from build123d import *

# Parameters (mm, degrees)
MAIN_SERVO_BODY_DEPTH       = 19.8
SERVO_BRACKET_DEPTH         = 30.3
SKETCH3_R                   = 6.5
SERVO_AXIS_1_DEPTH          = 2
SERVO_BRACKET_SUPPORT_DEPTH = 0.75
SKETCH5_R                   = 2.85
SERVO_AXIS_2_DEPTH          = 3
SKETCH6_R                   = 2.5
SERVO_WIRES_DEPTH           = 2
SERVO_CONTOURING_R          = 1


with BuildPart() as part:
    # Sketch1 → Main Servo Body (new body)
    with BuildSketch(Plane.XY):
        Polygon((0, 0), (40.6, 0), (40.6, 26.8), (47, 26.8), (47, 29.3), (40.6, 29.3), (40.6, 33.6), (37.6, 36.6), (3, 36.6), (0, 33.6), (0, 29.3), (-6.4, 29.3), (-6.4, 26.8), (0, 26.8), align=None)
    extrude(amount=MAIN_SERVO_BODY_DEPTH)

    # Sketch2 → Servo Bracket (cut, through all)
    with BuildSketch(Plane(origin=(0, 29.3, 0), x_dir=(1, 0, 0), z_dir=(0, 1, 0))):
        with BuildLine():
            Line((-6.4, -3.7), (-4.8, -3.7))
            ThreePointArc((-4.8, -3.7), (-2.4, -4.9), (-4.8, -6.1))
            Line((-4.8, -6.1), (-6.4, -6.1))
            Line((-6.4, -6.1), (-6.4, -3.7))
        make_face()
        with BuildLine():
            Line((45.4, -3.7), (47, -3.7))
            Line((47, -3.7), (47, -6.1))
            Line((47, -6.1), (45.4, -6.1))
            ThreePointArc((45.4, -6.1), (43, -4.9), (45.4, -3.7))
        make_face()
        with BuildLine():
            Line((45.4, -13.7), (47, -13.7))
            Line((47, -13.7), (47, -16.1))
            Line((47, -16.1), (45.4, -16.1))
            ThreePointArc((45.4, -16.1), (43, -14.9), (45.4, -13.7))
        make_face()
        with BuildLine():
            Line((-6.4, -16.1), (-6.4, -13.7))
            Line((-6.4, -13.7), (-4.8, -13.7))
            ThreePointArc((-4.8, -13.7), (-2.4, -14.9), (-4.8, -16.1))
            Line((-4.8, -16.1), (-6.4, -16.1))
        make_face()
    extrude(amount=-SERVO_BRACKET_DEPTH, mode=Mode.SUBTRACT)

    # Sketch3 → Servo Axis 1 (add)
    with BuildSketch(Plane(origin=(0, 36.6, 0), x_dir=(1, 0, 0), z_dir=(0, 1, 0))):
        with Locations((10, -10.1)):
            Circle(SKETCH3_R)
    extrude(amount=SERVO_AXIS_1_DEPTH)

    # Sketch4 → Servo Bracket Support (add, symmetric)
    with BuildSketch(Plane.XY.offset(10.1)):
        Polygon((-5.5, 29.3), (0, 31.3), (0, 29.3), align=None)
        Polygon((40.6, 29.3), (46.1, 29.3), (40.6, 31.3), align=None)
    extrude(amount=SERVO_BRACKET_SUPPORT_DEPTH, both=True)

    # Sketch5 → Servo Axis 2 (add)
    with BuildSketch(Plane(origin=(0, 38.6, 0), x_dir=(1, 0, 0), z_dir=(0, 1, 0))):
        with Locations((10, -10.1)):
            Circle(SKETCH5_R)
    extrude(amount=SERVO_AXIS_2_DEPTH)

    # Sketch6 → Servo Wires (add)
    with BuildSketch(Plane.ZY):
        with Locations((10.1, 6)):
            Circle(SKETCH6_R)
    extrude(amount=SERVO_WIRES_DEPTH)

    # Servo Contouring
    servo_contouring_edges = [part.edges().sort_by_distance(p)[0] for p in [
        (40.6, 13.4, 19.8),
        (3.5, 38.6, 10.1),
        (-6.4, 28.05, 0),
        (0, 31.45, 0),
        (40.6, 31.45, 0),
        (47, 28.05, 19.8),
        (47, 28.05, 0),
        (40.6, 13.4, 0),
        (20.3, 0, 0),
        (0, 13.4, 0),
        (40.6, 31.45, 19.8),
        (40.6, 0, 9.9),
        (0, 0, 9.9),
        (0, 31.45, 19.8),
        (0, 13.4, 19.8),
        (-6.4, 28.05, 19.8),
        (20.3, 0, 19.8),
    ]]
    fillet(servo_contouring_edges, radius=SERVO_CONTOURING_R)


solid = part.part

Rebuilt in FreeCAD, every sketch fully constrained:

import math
import FreeCAD as App
import Part
import Sketcher
from FreeCAD import Vector
Q = App.Units.Quantity


def edges_at(feature, points):
    """Names of the edges that pass closest to the given points."""
    edges = feature.Shape.Edges
    near = lambda p: min(range(len(edges)), key=lambda i: edges[i].distToShape(Part.Vertex(*p))[0])
    return sorted({f"Edge{near(p) + 1}" for p in points})

doc = App.newDocument("Part")
body = doc.addObject("PartDesign::Body", "Body")

sketch1 = doc.addObject("Sketcher::SketchObject", "Sketch")
body.addObject(sketch1)
sketch1.AttachmentSupport = (doc.XY_Plane, [""])
sketch1.MapMode = "FlatFace"
sketch1.addGeometry(Part.LineSegment(Vector(0, 0, 0), Vector(40.6, 0, 0)), False)
sketch1.addGeometry(Part.LineSegment(Vector(40.6, 0, 0), Vector(40.6, 26.8, 0)), False)
sketch1.addGeometry(Part.LineSegment(Vector(40.6, 26.8, 0), Vector(47, 26.8, 0)), False)
sketch1.addGeometry(Part.LineSegment(Vector(47, 26.8, 0), Vector(47, 29.3, 0)), False)
sketch1.addGeometry(Part.LineSegment(Vector(47, 29.3, 0), Vector(40.6, 29.3, 0)), False)
sketch1.addGeometry(Part.LineSegment(Vector(40.6, 29.3, 0), Vector(40.6, 33.6, 0)), False)
sketch1.addGeometry(Part.LineSegment(Vector(40.6, 33.6, 0), Vector(37.6, 36.6, 0)), False)
sketch1.addGeometry(Part.LineSegment(Vector(37.6, 36.6, 0), Vector(3, 36.6, 0)), False)
sketch1.addGeometry(Part.LineSegment(Vector(3, 36.6, 0), Vector(0, 33.6, 0)), False)
sketch1.addGeometry(Part.LineSegment(Vector(0, 33.6, 0), Vector(0, 29.3, 0)), False)
sketch1.addGeometry(Part.LineSegment(Vector(0, 29.3, 0), Vector(-6.4, 29.3, 0)), False)
sketch1.addGeometry(Part.LineSegment(Vector(-6.4, 29.3, 0), Vector(-6.4, 26.8, 0)), False)
sketch1.addGeometry(Part.LineSegment(Vector(-6.4, 26.8, 0), Vector(0, 26.8, 0)), False)
sketch1.addGeometry(Part.LineSegment(Vector(0, 26.8, 0), Vector(0, 0, 0)), False)
sketch1.addConstraint(Sketcher.Constraint("Coincident", 0, 2, 1, 1))
sketch1.addConstraint(Sketcher.Constraint("Coincident", 1, 2, 2, 1))
sketch1.addConstraint(Sketcher.Constraint("Coincident", 2, 2, 3, 1))
sketch1.addConstraint(Sketcher.Constraint("Coincident", 3, 2, 4, 1))
sketch1.addConstraint(Sketcher.Constraint("Coincident", 4, 2, 5, 1))
sketch1.addConstraint(Sketcher.Constraint("Coincident", 5, 2, 6, 1))
sketch1.addConstraint(Sketcher.Constraint("Coincident", 6, 2, 7, 1))
sketch1.addConstraint(Sketcher.Constraint("Coincident", 7, 2, 8, 1))
sketch1.addConstraint(Sketcher.Constraint("Coincident", 8, 2, 9, 1))
sketch1.addConstraint(Sketcher.Constraint("Coincident", 9, 2, 10, 1))
sketch1.addConstraint(Sketcher.Constraint("Coincident", 10, 2, 11, 1))
sketch1.addConstraint(Sketcher.Constraint("Coincident", 11, 2, 12, 1))
sketch1.addConstraint(Sketcher.Constraint("Coincident", 12, 2, 13, 1))
sketch1.addConstraint(Sketcher.Constraint("Coincident", 13, 2, 0, 1))
sketch1.addConstraint(Sketcher.Constraint("Horizontal", 0))
sketch1.addConstraint(Sketcher.Constraint("Vertical", 1))
sketch1.addConstraint(Sketcher.Constraint("Horizontal", 2))
sketch1.addConstraint(Sketcher.Constraint("Vertical", 3))
sketch1.addConstraint(Sketcher.Constraint("Horizontal", 4))
sketch1.addConstraint(Sketcher.Constraint("Vertical", 5))
sketch1.addConstraint(Sketcher.Constraint("Horizontal", 7))
sketch1.addConstraint(Sketcher.Constraint("Vertical", 9))
sketch1.addConstraint(Sketcher.Constraint("Horizontal", 10))
sketch1.addConstraint(Sketcher.Constraint("Vertical", 11))
sketch1.addConstraint(Sketcher.Constraint("Horizontal", 12))
sketch1.addConstraint(Sketcher.Constraint("Vertical", 13))
sketch1.addConstraint(Sketcher.Constraint("Coincident", 13, 2, -1, 1))
sketch1.addConstraint(Sketcher.Constraint("PointOnObject", 8, 2, -2))
sketch1.addConstraint(Sketcher.Constraint("Perpendicular", 6, 8))
sketch1.addConstraint(Sketcher.Constraint("Horizontal", 5, 2, 8, 2))
sketch1.addConstraint(Sketcher.Constraint("Horizontal", 4, 2, 9, 2))
sketch1.addConstraint(Sketcher.Constraint("Horizontal", 2, 2, 11, 2))
sketch1.addConstraint(Sketcher.Constraint("Vertical", 1, 2, 4, 2))
sketch1.addConstraint(Sketcher.Constraint("Equal", 4, 10))
sketch1.addConstraint(Sketcher.Constraint("Equal", 6, 8))
sketch1.addConstraint(Sketcher.Constraint("DistanceX", 0, 1, 0, 2, Q("40.6 mm")))
sketch1.addConstraint(Sketcher.Constraint("DistanceX", 2, 1, 2, 2, Q("6.4 mm")))
sketch1.addConstraint(Sketcher.Constraint("DistanceX", 7, 2, 7, 1, Q("34.6 mm")))
sketch1.addConstraint(Sketcher.Constraint("DistanceY", 1, 1, 1, 2, Q("26.8 mm")))
sketch1.addConstraint(Sketcher.Constraint("DistanceY", 3, 1, 3, 2, Q("2.5 mm")))
sketch1.addConstraint(Sketcher.Constraint("DistanceY", 5, 1, 5, 2, Q("4.3 mm")))
pad1 = doc.addObject("PartDesign::Pad", "Pad")
body.addObject(pad1)
pad1.Profile = sketch1
pad1.Length = 19.8

sketch2 = doc.addObject("Sketcher::SketchObject", "Sketch001")
body.addObject(sketch2)
sketch2.AttachmentSupport = (doc.XZ_Plane, [""])
sketch2.MapMode = "FlatFace"
sketch2.AttachmentOffset = App.Placement(Vector(0, 0, -29.3), App.Rotation())
sketch2.addGeometry(Part.LineSegment(Vector(-4.8, 3.7, 0), Vector(-6.4, 3.7, 0)), False)
sketch2.addGeometry(Part.LineSegment(Vector(-6.4, 3.7, 0), Vector(-6.4, 6.1, 0)), False)
sketch2.addGeometry(Part.LineSegment(Vector(-6.4, 6.1, 0), Vector(-4.8, 6.1, 0)), False)
sketch2.addGeometry(Part.ArcOfCircle(Part.Circle(Vector(-3.9, 4.9, 0), Vector(0, 0, 1), 1.5), math.radians(-127), math.radians(127)), False)
sketch2.addGeometry(Part.LineSegment(Vector(47, 3.7, 0), Vector(45.4, 3.7, 0)), False)
sketch2.addGeometry(Part.ArcOfCircle(Part.Circle(Vector(44.5, 4.9, 0), Vector(0, 0, 1), 1.5), math.radians(53), math.radians(307)), False)
sketch2.addGeometry(Part.LineSegment(Vector(45.4, 6.1, 0), Vector(47, 6.1, 0)), False)
sketch2.addGeometry(Part.LineSegment(Vector(47, 6.1, 0), Vector(47, 3.7, 0)), False)
sketch2.addGeometry(Part.LineSegment(Vector(47, 13.7, 0), Vector(45.4, 13.7, 0)), False)
sketch2.addGeometry(Part.ArcOfCircle(Part.Circle(Vector(44.5, 14.9, 0), Vector(0, 0, 1), 1.5), math.radians(53), math.radians(307)), False)
sketch2.addGeometry(Part.LineSegment(Vector(45.4, 16.1, 0), Vector(47, 16.1, 0)), False)
sketch2.addGeometry(Part.LineSegment(Vector(47, 16.1, 0), Vector(47, 13.7, 0)), False)
sketch2.addGeometry(Part.LineSegment(Vector(-6.4, 13.7, 0), Vector(-6.4, 16.1, 0)), False)
sketch2.addGeometry(Part.LineSegment(Vector(-6.4, 16.1, 0), Vector(-4.8, 16.1, 0)), False)
sketch2.addGeometry(Part.ArcOfCircle(Part.Circle(Vector(-3.9, 14.9, 0), Vector(0, 0, 1), 1.5), math.radians(-127), math.radians(127)), False)
sketch2.addGeometry(Part.LineSegment(Vector(-4.8, 13.7, 0), Vector(-6.4, 13.7, 0)), False)
sketch2.addConstraint(Sketcher.Constraint("Coincident", 0, 2, 1, 1))
sketch2.addConstraint(Sketcher.Constraint("Coincident", 1, 2, 2, 1))
sketch2.addConstraint(Sketcher.Constraint("Coincident", 2, 2, 3, 2))
sketch2.addConstraint(Sketcher.Constraint("Coincident", 3, 1, 0, 1))
sketch2.addConstraint(Sketcher.Constraint("Coincident", 4, 2, 5, 2))
sketch2.addConstraint(Sketcher.Constraint("Coincident", 5, 1, 6, 1))
sketch2.addConstraint(Sketcher.Constraint("Coincident", 6, 2, 7, 1))
sketch2.addConstraint(Sketcher.Constraint("Coincident", 7, 2, 4, 1))
sketch2.addConstraint(Sketcher.Constraint("Coincident", 8, 2, 9, 2))
sketch2.addConstraint(Sketcher.Constraint("Coincident", 9, 1, 10, 1))
sketch2.addConstraint(Sketcher.Constraint("Coincident", 10, 2, 11, 1))
sketch2.addConstraint(Sketcher.Constraint("Coincident", 11, 2, 8, 1))
sketch2.addConstraint(Sketcher.Constraint("Coincident", 12, 2, 13, 1))
sketch2.addConstraint(Sketcher.Constraint("Coincident", 13, 2, 14, 2))
sketch2.addConstraint(Sketcher.Constraint("Coincident", 14, 1, 15, 1))
sketch2.addConstraint(Sketcher.Constraint("Coincident", 15, 2, 12, 1))
sketch2.addConstraint(Sketcher.Constraint("Horizontal", 0))
sketch2.addConstraint(Sketcher.Constraint("Vertical", 1))
sketch2.addConstraint(Sketcher.Constraint("Horizontal", 2))
sketch2.addConstraint(Sketcher.Constraint("Horizontal", 4))
sketch2.addConstraint(Sketcher.Constraint("Horizontal", 6))
sketch2.addConstraint(Sketcher.Constraint("Vertical", 7))
sketch2.addConstraint(Sketcher.Constraint("Horizontal", 8))
sketch2.addConstraint(Sketcher.Constraint("Horizontal", 10))
sketch2.addConstraint(Sketcher.Constraint("Vertical", 11))
sketch2.addConstraint(Sketcher.Constraint("Vertical", 12))
sketch2.addConstraint(Sketcher.Constraint("Horizontal", 13))
sketch2.addConstraint(Sketcher.Constraint("Horizontal", 15))
sketch2.addConstraint(Sketcher.Constraint("Equal", 3, 5))
sketch2.addConstraint(Sketcher.Constraint("Equal", 5, 9))
sketch2.addConstraint(Sketcher.Constraint("Equal", 9, 14))
sketch2.addConstraint(Sketcher.Constraint("Horizontal", 3, 3, 5, 3))
sketch2.addConstraint(Sketcher.Constraint("Horizontal", 9, 3, 14, 3))
sketch2.addConstraint(Sketcher.Constraint("Horizontal", 3, 1, 4, 2))
sketch2.addConstraint(Sketcher.Constraint("Horizontal", 2, 2, 5, 1))
sketch2.addConstraint(Sketcher.Constraint("Horizontal", 10, 2, 12, 2))
sketch2.addConstraint(Sketcher.Constraint("Horizontal", 11, 2, 14, 1))
sketch2.addConstraint(Sketcher.Constraint("Vertical", 5, 3, 9, 3))
sketch2.addConstraint(Sketcher.Constraint("Vertical", 3, 3, 14, 3))
sketch2.addConstraint(Sketcher.Constraint("Vertical", 2, 2, 3, 1))
sketch2.addConstraint(Sketcher.Constraint("Vertical", 5, 1, 8, 2))
sketch2.addConstraint(Sketcher.Constraint("Vertical", 8, 2, 9, 1))
sketch2.addConstraint(Sketcher.Constraint("Vertical", 7, 2, 10, 2))
sketch2.addConstraint(Sketcher.Constraint("Vertical", 1, 2, 12, 2))
sketch2.addConstraint(Sketcher.Constraint("Equal", 2, 4))
sketch2.addConstraint(Sketcher.Constraint("Radius", 3, Q("1.5 mm")))
sketch2.addConstraint(Sketcher.Constraint("DistanceX", 0, 2, 0, 1, Q("1.6 mm")))
sketch2.addConstraint(Sketcher.Constraint("DistanceY", 1, 1, 1, 2, Q("2.4 mm")))
sketch2.addConstraint(Sketcher.Constraint("DistanceX", -1, 1, 6, 2, Q("47 mm")))
sketch2.addConstraint(Sketcher.Constraint("DistanceY", 5, 3, 9, 3, Q("10 mm")))
sketch2.addConstraint(Sketcher.Constraint("DistanceX", 3, 3, -1, 1, Q("3.9 mm")))
sketch2.addConstraint(Sketcher.Constraint("DistanceY", -1, 1, 3, 3, Q("4.9 mm")))
pocket1 = doc.addObject("PartDesign::Pocket", "Pocket")
body.addObject(pocket1)
pocket1.Profile = sketch2
pocket1.Type = "ThroughAll"
pocket1.Reversed = True

sketch3 = doc.addObject("Sketcher::SketchObject", "Sketch002")
body.addObject(sketch3)
sketch3.AttachmentSupport = (doc.XZ_Plane, [""])
sketch3.MapMode = "FlatFace"
sketch3.AttachmentOffset = App.Placement(Vector(0, 0, -36.6), App.Rotation())
sketch3.addGeometry(Part.Circle(Vector(10, 10, 0), Vector(0, 0, 1), 6), False)
sketch3.addConstraint(Sketcher.Constraint("Diameter", 0, Q("13 mm")))
sketch3.addConstraint(Sketcher.Constraint("DistanceX", -1, 1, 0, 3, Q("10 mm")))
sketch3.addConstraint(Sketcher.Constraint("DistanceY", -1, 1, 0, 3, Q("10.1 mm")))
pad2 = doc.addObject("PartDesign::Pad", "Pad001")
body.addObject(pad2)
pad2.Profile = sketch3
pad2.Length = 2
pad2.Reversed = True

sketch4 = doc.addObject("Sketcher::SketchObject", "Sketch003")
body.addObject(sketch4)
sketch4.AttachmentSupport = (doc.XY_Plane, [""])
sketch4.MapMode = "FlatFace"
sketch4.AttachmentOffset = App.Placement(Vector(0, 0, 10.1), App.Rotation())
sketch4.addGeometry(Part.LineSegment(Vector(0, 31.3, 0), Vector(-5.5, 29.3, 0)), False)
sketch4.addGeometry(Part.LineSegment(Vector(-5.5, 29.3, 0), Vector(0, 29.3, 0)), False)
sketch4.addGeometry(Part.LineSegment(Vector(0, 29.3, 0), Vector(0, 31.3, 0)), False)
sketch4.addGeometry(Part.LineSegment(Vector(40.6, 29.3, 0), Vector(46.1, 29.3, 0)), False)
sketch4.addGeometry(Part.LineSegment(Vector(46.1, 29.3, 0), Vector(40.6, 31.3, 0)), False)
sketch4.addGeometry(Part.LineSegment(Vector(40.6, 31.3, 0), Vector(40.6, 29.3, 0)), False)
sketch4.addConstraint(Sketcher.Constraint("Coincident", 0, 2, 1, 1))
sketch4.addConstraint(Sketcher.Constraint("Coincident", 1, 2, 2, 1))
sketch4.addConstraint(Sketcher.Constraint("Coincident", 2, 2, 0, 1))
sketch4.addConstraint(Sketcher.Constraint("Coincident", 3, 2, 4, 1))
sketch4.addConstraint(Sketcher.Constraint("Coincident", 4, 2, 5, 1))
sketch4.addConstraint(Sketcher.Constraint("Coincident", 5, 2, 3, 1))
sketch4.addConstraint(Sketcher.Constraint("Horizontal", 1))
sketch4.addConstraint(Sketcher.Constraint("Vertical", 2))
sketch4.addConstraint(Sketcher.Constraint("Horizontal", 3))
sketch4.addConstraint(Sketcher.Constraint("Vertical", 5))
sketch4.addConstraint(Sketcher.Constraint("PointOnObject", 1, 2, -2))
sketch4.addConstraint(Sketcher.Constraint("Horizontal", 1, 2, 3, 2))
sketch4.addConstraint(Sketcher.Constraint("Horizontal", 2, 2, 4, 2))
sketch4.addConstraint(Sketcher.Constraint("Equal", 1, 3))
sketch4.addConstraint(Sketcher.Constraint("DistanceY", 2, 1, 2, 2, Q("2 mm")))
sketch4.addConstraint(Sketcher.Constraint("DistanceX", 1, 1, 1, 2, Q("5.5 mm")))
sketch4.addConstraint(Sketcher.Constraint("DistanceY", -1, 1, 0, 2, Q("29.3 mm")))
sketch4.addConstraint(Sketcher.Constraint("DistanceX", -1, 1, 3, 2, Q("46.1 mm")))
pad3 = doc.addObject("PartDesign::Pad", "Pad002")
body.addObject(pad3)
pad3.Profile = sketch4
pad3.Length = 1.5
pad3.Midplane = True

sketch5 = doc.addObject("Sketcher::SketchObject", "Sketch004")
body.addObject(sketch5)
sketch5.AttachmentSupport = (doc.XZ_Plane, [""])
sketch5.MapMode = "FlatFace"
sketch5.AttachmentOffset = App.Placement(Vector(0, 0, -38.6), App.Rotation())
sketch5.addGeometry(Part.Circle(Vector(10, 10.1, 0), Vector(0, 0, 1), 2.9), False)
sketch5.addConstraint(Sketcher.Constraint("Diameter", 0, Q("5.7 mm")))
sketch5.addConstraint(Sketcher.Constraint("DistanceX", -1, 1, 0, 3, Q("10 mm")))
sketch5.addConstraint(Sketcher.Constraint("DistanceY", -1, 1, 0, 3, Q("10.1 mm")))
pad4 = doc.addObject("PartDesign::Pad", "Pad003")
body.addObject(pad4)
pad4.Profile = sketch5
pad4.Length = 3
pad4.Reversed = True

sketch6 = doc.addObject("Sketcher::SketchObject", "Sketch005")
body.addObject(sketch6)
sketch6.AttachmentSupport = (doc.YZ_Plane, [""])
sketch6.MapMode = "FlatFace"
sketch6.addGeometry(Part.Circle(Vector(6, 10.1, 0), Vector(0, 0, 1), 2.5), False)
sketch6.addConstraint(Sketcher.Constraint("Diameter", 0, Q("5 mm")))
sketch6.addConstraint(Sketcher.Constraint("DistanceX", -1, 1, 0, 3, Q("6 mm")))
sketch6.addConstraint(Sketcher.Constraint("DistanceY", -1, 1, 0, 3, Q("10.1 mm")))
pad5 = doc.addObject("PartDesign::Pad", "Pad004")
body.addObject(pad5)
pad5.Profile = sketch6
pad5.Length = 2
pad5.Reversed = True
doc.recompute()

fillet = doc.addObject("PartDesign::Fillet", "Fillet")
body.addObject(fillet)
fillet.Base = (pad5, edges_at(pad5, [
    (40.6, 13.4, 19.8),
    (3.5, 38.6, 10.1),
    (-6.4, 28.05, 0),
    (0, 31.45, 0),
    (40.6, 31.45, 0),
    (47, 28.05, 19.8),
    (47, 28.05, 0),
    (40.6, 13.4, 0),
    (20.3, 0, 0),
    (0, 13.4, 0),
    (40.6, 31.45, 19.8),
    (40.6, 0, 9.9),
    (0, 0, 9.9),
    (0, 31.45, 19.8),
    (0, 13.4, 19.8),
    (-6.4, 28.05, 19.8),
    (20.3, 0, 19.8),
]))
fillet.Radius = 1

doc.recompute()
